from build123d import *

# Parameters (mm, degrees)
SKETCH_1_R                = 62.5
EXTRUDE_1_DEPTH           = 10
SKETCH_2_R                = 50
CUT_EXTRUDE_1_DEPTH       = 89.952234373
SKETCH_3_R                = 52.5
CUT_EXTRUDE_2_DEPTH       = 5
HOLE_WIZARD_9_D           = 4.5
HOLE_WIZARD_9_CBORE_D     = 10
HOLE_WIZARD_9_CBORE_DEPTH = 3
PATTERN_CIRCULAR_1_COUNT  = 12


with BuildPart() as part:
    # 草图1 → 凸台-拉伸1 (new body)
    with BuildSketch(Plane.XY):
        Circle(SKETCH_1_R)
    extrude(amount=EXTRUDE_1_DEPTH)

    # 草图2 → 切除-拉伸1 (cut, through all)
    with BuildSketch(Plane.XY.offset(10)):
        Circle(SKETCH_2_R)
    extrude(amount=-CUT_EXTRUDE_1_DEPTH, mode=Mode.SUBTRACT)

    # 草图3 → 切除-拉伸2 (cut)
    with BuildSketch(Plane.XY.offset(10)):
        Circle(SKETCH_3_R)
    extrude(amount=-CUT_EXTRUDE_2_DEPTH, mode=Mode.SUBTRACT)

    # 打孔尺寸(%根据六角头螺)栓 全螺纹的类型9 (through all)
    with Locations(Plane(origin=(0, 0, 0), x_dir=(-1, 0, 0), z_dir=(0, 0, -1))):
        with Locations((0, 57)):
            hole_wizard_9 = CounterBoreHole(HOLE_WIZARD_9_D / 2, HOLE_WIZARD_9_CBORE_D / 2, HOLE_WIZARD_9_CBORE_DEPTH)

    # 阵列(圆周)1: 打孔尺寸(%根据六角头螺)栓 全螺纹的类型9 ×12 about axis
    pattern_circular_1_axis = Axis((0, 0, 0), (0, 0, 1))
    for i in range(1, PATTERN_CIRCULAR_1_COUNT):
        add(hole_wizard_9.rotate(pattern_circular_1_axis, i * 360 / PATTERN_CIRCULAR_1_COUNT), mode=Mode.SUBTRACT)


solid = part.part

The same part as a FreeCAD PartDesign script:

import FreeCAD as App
import Part
import Sketcher
Q = App.Units.Quantity

doc = App.newDocument("Part")
body = doc.addObject("PartDesign::Body", "Body")

sketch1 = body.newObject("Sketcher::SketchObject", "Sketch")
sketch1.AttachmentSupport = (doc.getObject("XY_Plane"), [""])
sketch1.MapMode = "FlatFace"
sketch1.addGeometry(Part.Circle(App.Vector(0, 0, 0), App.Vector(0, 0, 1), 62.5), False)
sketch1.addConstraint([
    Sketcher.Constraint("Coincident", 0, 3, -1, 1),
    Sketcher.Constraint("Diameter", 0, Q("125 mm")),
])
pad1 = body.newObject("PartDesign::Pad", "Pad")
pad1.Profile = sketch1
pad1.Length = 10

sketch2 = body.newObject("Sketcher::SketchObject", "Sketch001")
sketch2.AttachmentSupport = (doc.getObject("XY_Plane"), [""])
sketch2.MapMode = "FlatFace"
sketch2.AttachmentOffset = App.Placement(App.Vector(0, 0, 10), App.Rotation())
sketch2.addGeometry(Part.Circle(App.Vector(0, 0, 0), App.Vector(0, 0, 1), 50), False)
sketch2.addConstraint([
    Sketcher.Constraint("Coincident", 0, 3, -1, 1),
    Sketcher.Constraint("Diameter", 0, Q("100 mm")),
])
pocket1 = body.newObject("PartDesign::Pocket", "Pocket")
pocket1.Profile = sketch2
pocket1.Type = "ThroughAll"

sketch3 = body.newObject("Sketcher::SketchObject", "Sketch002")
sketch3.AttachmentSupport = (doc.getObject("XY_Plane"), [""])
sketch3.MapMode = "FlatFace"
sketch3.AttachmentOffset = App.Placement(App.Vector(0, 0, 10), App.Rotation())
sketch3.addGeometry(Part.Circle(App.Vector(0, 0, 0), App.Vector(0, 0, 1), 52.5), False)
sketch3.addConstraint([
    Sketcher.Constraint("Coincident", 0, 3, -1, 1),
    Sketcher.Constraint("Diameter", 0, Q("105 mm")),
])
pocket2 = body.newObject("PartDesign::Pocket", "Pocket001")
pocket2.Profile = sketch3
pocket2.Length = 5

sketch4 = body.newObject("Sketcher::SketchObject", "Sketch003")
sketch4.AttachmentSupport = (doc.getObject("XY_Plane"), [""])
sketch4.MapMode = "FlatFace"
sketch4.addGeometry(Part.Circle(App.Vector(0, 57, 0), App.Vector(0, 0, 1), 2.25), False)
sketch4.addConstraint([
    Sketcher.Constraint("PointOnObject", 0, 3, -2),
    Sketcher.Constraint("Diameter", 0, Q("4.5 mm")),
    Sketcher.Constraint("DistanceY", -1, 1, 0, 3, Q("57 mm")),
])
doc.recompute()
hole = body.newObject("PartDesign::Hole", "Hole")
hole.Profile = sketch4
hole.ThreadType = "None"
hole.Diameter = 4.5
hole.DepthType = "ThroughAll"
hole.HoleCutType = "Counterbore"
hole.HoleCutDiameter = 10
hole.HoleCutDepth = 3
hole.Reversed = True
doc.recompute()

polarpattern = body.newObject("PartDesign::PolarPattern", "PolarPattern")
polarpattern.Originals = [hole]
polarpattern.Axis = (doc.getObject("Z_Axis"), [""])
polarpattern.Angle = 360
polarpattern.Occurrences = 12
body.Tip = polarpattern

doc.recompute()
